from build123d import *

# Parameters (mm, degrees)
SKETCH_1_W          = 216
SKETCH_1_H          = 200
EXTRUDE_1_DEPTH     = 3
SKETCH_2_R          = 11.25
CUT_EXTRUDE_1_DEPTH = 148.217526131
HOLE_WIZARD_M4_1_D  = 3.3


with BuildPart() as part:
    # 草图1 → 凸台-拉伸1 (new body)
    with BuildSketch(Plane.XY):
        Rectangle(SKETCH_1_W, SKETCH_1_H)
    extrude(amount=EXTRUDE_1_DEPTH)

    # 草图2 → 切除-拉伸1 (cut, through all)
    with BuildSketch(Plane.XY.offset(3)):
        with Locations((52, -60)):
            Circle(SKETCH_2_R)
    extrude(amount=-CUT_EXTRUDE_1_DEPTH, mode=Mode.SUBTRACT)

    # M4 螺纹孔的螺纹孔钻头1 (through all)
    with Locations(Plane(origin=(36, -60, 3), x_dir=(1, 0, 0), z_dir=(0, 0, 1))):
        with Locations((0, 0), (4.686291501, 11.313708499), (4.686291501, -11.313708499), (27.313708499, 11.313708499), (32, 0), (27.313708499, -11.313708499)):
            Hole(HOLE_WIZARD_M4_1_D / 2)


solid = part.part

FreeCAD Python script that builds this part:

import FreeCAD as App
import Part
import Sketcher


def add_polygon(sketch, points):
    """Adds a closed chain of lines whose ends are joined by coincident constraints."""
    first, n = sketch.GeometryCount, len(points)
    for a, b in zip(points, points[1:] + points[:1]):
        sketch.addGeometry(Part.LineSegment(App.Vector(*a, 0), App.Vector(*b, 0)), False)
    for i in range(n):
        sketch.addConstraint(Sketcher.Constraint("Coincident", first + i, 2, first + (i + 1) % n, 1))

doc = App.newDocument("Part")
params = doc.addObject("Spreadsheet::Sheet", "Params")
for row, (alias, value) in enumerate([
    ("sketch1_width", "216 mm"),
    ("sketch1_height", "200 mm"),
    ("pad1_length", "3 mm"),
    ("sketch2_diameter", "22.5 mm"),
    ("sketch3_diameter", "3.3 mm"),
    ("hole_diameter", "3.3 mm"),
], start=1):
    params.set(f"A{row}", alias)
    params.set(f"B{row}", "=" + value)
    params.setAlias(f"B{row}", alias)

body = doc.addObject("PartDesign::Body", "Body")

sketch1 = doc.addObject("Sketcher::SketchObject", "Sketch")
body.addObject(sketch1)
sketch1.AttachmentSupport = (doc.XY_Plane, [""])
sketch1.MapMode = "FlatFace"
add_polygon(sketch1, [(-108, 100), (-108, -100), (108, -100), (108, 100)])
sketch1.addConstraint(Sketcher.Constraint("Vertical", 0))
sketch1.addConstraint(Sketcher.Constraint("Horizontal", 1))
sketch1.addConstraint(Sketcher.Constraint("Vertical", 2))
sketch1.addConstraint(Sketcher.Constraint("Horizontal", 3))
sketch1.addConstraint(Sketcher.Constraint("Symmetric", 0, 2, 2, 2, -1, 1))
sketch1.addConstraint(Sketcher.Constraint("DistanceX", 1, 1, 1, 2, 216.0))
sketch1.addConstraint(Sketcher.Constraint("DistanceY", 0, 2, 0, 1, 200.0))
sketch1.setExpression("Constraints[9]", "Params.sketch1_width")
sketch1.setExpression("Constraints[10]", "Params.sketch1_height")
pad1 = doc.addObject("PartDesign::Pad", "Pad")
body.addObject(pad1)
pad1.Profile = sketch1
pad1.setExpression("Length", "Params.pad1_length")

sketch2 = doc.addObject("Sketcher::SketchObject", "Sketch001")
body.addObject(sketch2)
sketch2.AttachmentSupport = (doc.XY_Plane, [""])
sketch2.MapMode = "FlatFace"
sketch2.AttachmentOffset = App.Placement(App.Vector(0, 0, 3), App.Rotation())
sketch2.addGeometry(Part.Circle(App.Vector(52, -60, 0), App.Vector(0, 0, 1), 11), False)
sketch2.addConstraint(Sketcher.Constraint("Diameter", 0, 22.5))
sketch2.addConstraint(Sketcher.Constraint("DistanceX", -1, 1, 0, 3, 52.0))
sketch2.addConstraint(Sketcher.Constraint("DistanceY", 0, 3, -1, 1, 60.0))
sketch2.setExpression("Constraints[0]", "Params.sketch2_diameter")
pocket1 = doc.addObject("PartDesign::Pocket", "Pocket")
body.addObject(pocket1)
pocket1.Profile = sketch2
pocket1.Type = "ThroughAll"

sketch3 = doc.addObject("Sketcher::SketchObject", "Sketch002")
body.addObject(sketch3)
sketch3.AttachmentSupport = (doc.XY_Plane, [""])
sketch3.MapMode = "FlatFace"
sketch3.AttachmentOffset = App.Placement(App.Vector(0, 0, 3), App.Rotation())
sketch3.addGeometry(Part.Circle(App.Vector(36, -60, 0), App.Vector(0, 0, 1), 1.6), False)
sketch3.addGeometry(Part.Circle(App.Vector(40.7, -48.7, 0), App.Vector(0, 0, 1), 1.6), False)
sketch3.addGeometry(Part.Circle(App.Vector(40.7, -71.3, 0), App.Vector(0, 0, 1), 1.6), False)
sketch3.addGeometry(Part.Circle(App.Vector(63.3, -48.7, 0), App.Vector(0, 0, 1), 1.6), False)
sketch3.addGeometry(Part.Circle(App.Vector(68, -60, 0), App.Vector(0, 0, 1), 1.6), False)
sketch3.addGeometry(Part.Circle(App.Vector(63.3, -71.3, 0), App.Vector(0, 0, 1), 1.6), False)
sketch3.addConstraint(Sketcher.Constraint("Equal", 0, 1))
sketch3.addConstraint(Sketcher.Constraint("Equal", 1, 2))
sketch3.addConstraint(Sketcher.Constraint("Equal", 2, 3))
sketch3.addConstraint(Sketcher.Constraint("Equal", 3, 4))
sketch3.addConstraint(Sketcher.Constraint("Equal", 4, 5))
sketch3.addConstraint(Sketcher.Constraint("Horizontal", 1, 3, 3, 3))
sketch3.addConstraint(Sketcher.Constraint("Horizontal", 0, 3, 4, 3))
sketch3.addConstraint(Sketcher.Constraint("Horizontal", 2, 3, 5, 3))
sketch3.addConstraint(Sketcher.Constraint("Vertical", 1, 3, 2, 3))
sketch3.addConstraint(Sketcher.Constraint("Vertical", 3, 3, 5, 3))
sketch3.addConstraint(Sketcher.Constraint("Diameter", 0, 3.3))
sketch3.addConstraint(Sketcher.Constraint("DistanceX", -1, 1, 0, 3, 36.0))
sketch3.addConstraint(Sketcher.Constraint("DistanceY", 0, 3, -1, 1, 60.0))
sketch3.addConstraint(Sketcher.Constraint("DistanceX", -1, 1, 4, 3, 68.0))
sketch3.addConstraint(Sketcher.Constraint("DistanceX", -1, 1, 1, 3, 40.686292))
sketch3.addConstraint(Sketcher.Constraint("DistanceY", 1, 3, -1, 1, 48.686292))
sketch3.addConstraint(Sketcher.Constraint("DistanceY", 2, 3, -1, 1, 71.313708))
sketch3.addConstraint(Sketcher.Constraint("DistanceX", -1, 1, 3, 3, 63.313708))
sketch3.setExpression("Constraints[10]", "Params.sketch3_diameter")
doc.recompute()
hole = doc.addObject("PartDesign::Hole", "Hole")
body.addObject(hole)
hole.Profile = sketch3
hole.ThreadType = "None"
hole.setExpression("Diameter", "Params.hole_diameter")
hole.DepthType = "ThroughAll"

doc.recompute()
